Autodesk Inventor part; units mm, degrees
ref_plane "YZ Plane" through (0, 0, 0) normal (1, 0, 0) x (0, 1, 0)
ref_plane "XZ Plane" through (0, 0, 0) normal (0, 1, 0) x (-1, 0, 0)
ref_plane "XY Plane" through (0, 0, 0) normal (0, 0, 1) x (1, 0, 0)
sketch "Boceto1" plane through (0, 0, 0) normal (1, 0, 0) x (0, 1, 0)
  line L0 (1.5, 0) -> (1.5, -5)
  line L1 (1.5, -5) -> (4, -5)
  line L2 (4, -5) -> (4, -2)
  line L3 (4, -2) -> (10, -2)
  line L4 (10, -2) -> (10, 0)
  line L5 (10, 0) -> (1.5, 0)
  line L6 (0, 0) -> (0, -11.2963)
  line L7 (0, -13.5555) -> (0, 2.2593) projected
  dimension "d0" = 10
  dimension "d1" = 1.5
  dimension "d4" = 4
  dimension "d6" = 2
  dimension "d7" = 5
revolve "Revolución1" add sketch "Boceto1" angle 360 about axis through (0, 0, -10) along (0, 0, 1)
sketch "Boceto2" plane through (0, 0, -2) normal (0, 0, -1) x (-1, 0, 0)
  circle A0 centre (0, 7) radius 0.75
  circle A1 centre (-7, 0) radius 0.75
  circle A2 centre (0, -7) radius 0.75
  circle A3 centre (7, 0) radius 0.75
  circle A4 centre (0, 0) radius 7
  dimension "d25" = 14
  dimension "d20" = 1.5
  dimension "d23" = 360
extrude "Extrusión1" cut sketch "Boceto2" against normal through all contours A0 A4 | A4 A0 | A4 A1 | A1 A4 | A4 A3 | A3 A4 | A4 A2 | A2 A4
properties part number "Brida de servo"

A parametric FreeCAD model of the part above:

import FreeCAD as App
import Part
import Sketcher
from FreeCAD import Vector
Q = App.Units.Quantity


def add_polygon(sketch, points):
    """Adds a closed chain of lines whose ends are joined by coincident constraints."""
    first, n = sketch.GeometryCount, len(points)
    for a, b in zip(points, points[1:] + points[:1]):
        sketch.addGeometry(Part.LineSegment(App.Vector(*a, 0), App.Vector(*b, 0)), False)
    for i in range(n):
        sketch.addConstraint(Sketcher.Constraint("Coincident", first + i, 2, first + (i + 1) % n, 1))

doc = App.newDocument("Part")
body = doc.addObject("PartDesign::Body", "Body")

# Sketch on YZ plane
sketch1 = body.newObject("Sketcher::SketchObject", "Sketch")
sketch1.AttachmentSupport = (doc.getObject("YZ_Plane"), [""])
sketch1.MapMode = "FlatFace"
add_polygon(sketch1, [(10, 0), (1.5, 0), (1.5, -5), (4, -5), (4, -2), (10, -2)])  # lines 0-5
sketch1.addConstraint(Sketcher.Constraint("Horizontal", 0))
sketch1.addConstraint(Sketcher.Constraint("Vertical", 1))
sketch1.addConstraint(Sketcher.Constraint("Horizontal", 2))
sketch1.addConstraint(Sketcher.Constraint("Vertical", 3))
sketch1.addConstraint(Sketcher.Constraint("Horizontal", 4))
sketch1.addConstraint(Sketcher.Constraint("Vertical", 5))
sketch1.addConstraint(Sketcher.Constraint("PointOnObject", 0, 2, -1))
sketch1.addConstraint(Sketcher.Constraint("DistanceY", 1, 2, 1, 1, Q("5 mm")))
sketch1.addConstraint(Sketcher.Constraint("DistanceY", 5, 1, 5, 2, Q("2 mm")))
sketch1.addConstraint(Sketcher.Constraint("DistanceX", -1, 1, 2, 2, Q("4 mm")))
sketch1.addConstraint(Sketcher.Constraint("DistanceX", -1, 1, 4, 2, Q("10 mm")))
sketch1.addConstraint(Sketcher.Constraint("DistanceX", -1, 1, 0, 2, Q("1.5 mm")))
revolution = body.newObject("PartDesign::Revolution", "Revolution")
revolution.Profile = sketch1
revolution.ReferenceAxis = (sketch1, ["V_Axis"])
revolution.Angle = 360

# Sketch on XY plane
sketch2 = body.newObject("Sketcher::SketchObject", "Sketch001")
sketch2.AttachmentSupport = (doc.getObject("XY_Plane"), [""])
sketch2.MapMode = "FlatFace"
sketch2.AttachmentOffset = App.Placement(Vector(0, 0, -2), App.Rotation())
sketch2.addGeometry(Part.Circle(Vector(0, 7, 0), Vector(0, 0, 1), 0.75), False)
sketch2.addGeometry(Part.Circle(Vector(7, 0, 0), Vector(0, 0, 1), 0.75), False)
sketch2.addGeometry(Part.Circle(Vector(-7, 0, 0), Vector(0, 0, 1), 0.75), False)
sketch2.addGeometry(Part.Circle(Vector(0, -7, 0), Vector(0, 0, 1), 0.75), False)
sketch2.addConstraint(Sketcher.Constraint("Equal", 0, 1))
sketch2.addConstraint(Sketcher.Constraint("Equal", 1, 2))
sketch2.addConstraint(Sketcher.Constraint("Equal", 2, 3))
sketch2.addConstraint(Sketcher.Constraint("Symmetric", 1, 3, 2, 3, -1, 1))
sketch2.addConstraint(Sketcher.Constraint("Symmetric", 0, 3, 3, 3, -1, 1))
sketch2.addConstraint(Sketcher.Constraint("PointOnObject", 0, 3, -2))
sketch2.addConstraint(Sketcher.Constraint("PointOnObject", 1, 3, -1))
sketch2.addConstraint(Sketcher.Constraint("Diameter", 0, Q("1.5 mm")))
sketch2.addConstraint(Sketcher.Constraint("DistanceX", 2, 3, 1, 3, Q("14 mm")))
sketch2.addConstraint(Sketcher.Constraint("DistanceY", 3, 3, 0, 3, Q("14 mm")))
pocket1 = body.newObject("PartDesign::Pocket", "Pocket")
pocket1.Profile = sketch2
pocket1.Type = "ThroughAll"
pocket1.Reversed = True

doc.recompute()
